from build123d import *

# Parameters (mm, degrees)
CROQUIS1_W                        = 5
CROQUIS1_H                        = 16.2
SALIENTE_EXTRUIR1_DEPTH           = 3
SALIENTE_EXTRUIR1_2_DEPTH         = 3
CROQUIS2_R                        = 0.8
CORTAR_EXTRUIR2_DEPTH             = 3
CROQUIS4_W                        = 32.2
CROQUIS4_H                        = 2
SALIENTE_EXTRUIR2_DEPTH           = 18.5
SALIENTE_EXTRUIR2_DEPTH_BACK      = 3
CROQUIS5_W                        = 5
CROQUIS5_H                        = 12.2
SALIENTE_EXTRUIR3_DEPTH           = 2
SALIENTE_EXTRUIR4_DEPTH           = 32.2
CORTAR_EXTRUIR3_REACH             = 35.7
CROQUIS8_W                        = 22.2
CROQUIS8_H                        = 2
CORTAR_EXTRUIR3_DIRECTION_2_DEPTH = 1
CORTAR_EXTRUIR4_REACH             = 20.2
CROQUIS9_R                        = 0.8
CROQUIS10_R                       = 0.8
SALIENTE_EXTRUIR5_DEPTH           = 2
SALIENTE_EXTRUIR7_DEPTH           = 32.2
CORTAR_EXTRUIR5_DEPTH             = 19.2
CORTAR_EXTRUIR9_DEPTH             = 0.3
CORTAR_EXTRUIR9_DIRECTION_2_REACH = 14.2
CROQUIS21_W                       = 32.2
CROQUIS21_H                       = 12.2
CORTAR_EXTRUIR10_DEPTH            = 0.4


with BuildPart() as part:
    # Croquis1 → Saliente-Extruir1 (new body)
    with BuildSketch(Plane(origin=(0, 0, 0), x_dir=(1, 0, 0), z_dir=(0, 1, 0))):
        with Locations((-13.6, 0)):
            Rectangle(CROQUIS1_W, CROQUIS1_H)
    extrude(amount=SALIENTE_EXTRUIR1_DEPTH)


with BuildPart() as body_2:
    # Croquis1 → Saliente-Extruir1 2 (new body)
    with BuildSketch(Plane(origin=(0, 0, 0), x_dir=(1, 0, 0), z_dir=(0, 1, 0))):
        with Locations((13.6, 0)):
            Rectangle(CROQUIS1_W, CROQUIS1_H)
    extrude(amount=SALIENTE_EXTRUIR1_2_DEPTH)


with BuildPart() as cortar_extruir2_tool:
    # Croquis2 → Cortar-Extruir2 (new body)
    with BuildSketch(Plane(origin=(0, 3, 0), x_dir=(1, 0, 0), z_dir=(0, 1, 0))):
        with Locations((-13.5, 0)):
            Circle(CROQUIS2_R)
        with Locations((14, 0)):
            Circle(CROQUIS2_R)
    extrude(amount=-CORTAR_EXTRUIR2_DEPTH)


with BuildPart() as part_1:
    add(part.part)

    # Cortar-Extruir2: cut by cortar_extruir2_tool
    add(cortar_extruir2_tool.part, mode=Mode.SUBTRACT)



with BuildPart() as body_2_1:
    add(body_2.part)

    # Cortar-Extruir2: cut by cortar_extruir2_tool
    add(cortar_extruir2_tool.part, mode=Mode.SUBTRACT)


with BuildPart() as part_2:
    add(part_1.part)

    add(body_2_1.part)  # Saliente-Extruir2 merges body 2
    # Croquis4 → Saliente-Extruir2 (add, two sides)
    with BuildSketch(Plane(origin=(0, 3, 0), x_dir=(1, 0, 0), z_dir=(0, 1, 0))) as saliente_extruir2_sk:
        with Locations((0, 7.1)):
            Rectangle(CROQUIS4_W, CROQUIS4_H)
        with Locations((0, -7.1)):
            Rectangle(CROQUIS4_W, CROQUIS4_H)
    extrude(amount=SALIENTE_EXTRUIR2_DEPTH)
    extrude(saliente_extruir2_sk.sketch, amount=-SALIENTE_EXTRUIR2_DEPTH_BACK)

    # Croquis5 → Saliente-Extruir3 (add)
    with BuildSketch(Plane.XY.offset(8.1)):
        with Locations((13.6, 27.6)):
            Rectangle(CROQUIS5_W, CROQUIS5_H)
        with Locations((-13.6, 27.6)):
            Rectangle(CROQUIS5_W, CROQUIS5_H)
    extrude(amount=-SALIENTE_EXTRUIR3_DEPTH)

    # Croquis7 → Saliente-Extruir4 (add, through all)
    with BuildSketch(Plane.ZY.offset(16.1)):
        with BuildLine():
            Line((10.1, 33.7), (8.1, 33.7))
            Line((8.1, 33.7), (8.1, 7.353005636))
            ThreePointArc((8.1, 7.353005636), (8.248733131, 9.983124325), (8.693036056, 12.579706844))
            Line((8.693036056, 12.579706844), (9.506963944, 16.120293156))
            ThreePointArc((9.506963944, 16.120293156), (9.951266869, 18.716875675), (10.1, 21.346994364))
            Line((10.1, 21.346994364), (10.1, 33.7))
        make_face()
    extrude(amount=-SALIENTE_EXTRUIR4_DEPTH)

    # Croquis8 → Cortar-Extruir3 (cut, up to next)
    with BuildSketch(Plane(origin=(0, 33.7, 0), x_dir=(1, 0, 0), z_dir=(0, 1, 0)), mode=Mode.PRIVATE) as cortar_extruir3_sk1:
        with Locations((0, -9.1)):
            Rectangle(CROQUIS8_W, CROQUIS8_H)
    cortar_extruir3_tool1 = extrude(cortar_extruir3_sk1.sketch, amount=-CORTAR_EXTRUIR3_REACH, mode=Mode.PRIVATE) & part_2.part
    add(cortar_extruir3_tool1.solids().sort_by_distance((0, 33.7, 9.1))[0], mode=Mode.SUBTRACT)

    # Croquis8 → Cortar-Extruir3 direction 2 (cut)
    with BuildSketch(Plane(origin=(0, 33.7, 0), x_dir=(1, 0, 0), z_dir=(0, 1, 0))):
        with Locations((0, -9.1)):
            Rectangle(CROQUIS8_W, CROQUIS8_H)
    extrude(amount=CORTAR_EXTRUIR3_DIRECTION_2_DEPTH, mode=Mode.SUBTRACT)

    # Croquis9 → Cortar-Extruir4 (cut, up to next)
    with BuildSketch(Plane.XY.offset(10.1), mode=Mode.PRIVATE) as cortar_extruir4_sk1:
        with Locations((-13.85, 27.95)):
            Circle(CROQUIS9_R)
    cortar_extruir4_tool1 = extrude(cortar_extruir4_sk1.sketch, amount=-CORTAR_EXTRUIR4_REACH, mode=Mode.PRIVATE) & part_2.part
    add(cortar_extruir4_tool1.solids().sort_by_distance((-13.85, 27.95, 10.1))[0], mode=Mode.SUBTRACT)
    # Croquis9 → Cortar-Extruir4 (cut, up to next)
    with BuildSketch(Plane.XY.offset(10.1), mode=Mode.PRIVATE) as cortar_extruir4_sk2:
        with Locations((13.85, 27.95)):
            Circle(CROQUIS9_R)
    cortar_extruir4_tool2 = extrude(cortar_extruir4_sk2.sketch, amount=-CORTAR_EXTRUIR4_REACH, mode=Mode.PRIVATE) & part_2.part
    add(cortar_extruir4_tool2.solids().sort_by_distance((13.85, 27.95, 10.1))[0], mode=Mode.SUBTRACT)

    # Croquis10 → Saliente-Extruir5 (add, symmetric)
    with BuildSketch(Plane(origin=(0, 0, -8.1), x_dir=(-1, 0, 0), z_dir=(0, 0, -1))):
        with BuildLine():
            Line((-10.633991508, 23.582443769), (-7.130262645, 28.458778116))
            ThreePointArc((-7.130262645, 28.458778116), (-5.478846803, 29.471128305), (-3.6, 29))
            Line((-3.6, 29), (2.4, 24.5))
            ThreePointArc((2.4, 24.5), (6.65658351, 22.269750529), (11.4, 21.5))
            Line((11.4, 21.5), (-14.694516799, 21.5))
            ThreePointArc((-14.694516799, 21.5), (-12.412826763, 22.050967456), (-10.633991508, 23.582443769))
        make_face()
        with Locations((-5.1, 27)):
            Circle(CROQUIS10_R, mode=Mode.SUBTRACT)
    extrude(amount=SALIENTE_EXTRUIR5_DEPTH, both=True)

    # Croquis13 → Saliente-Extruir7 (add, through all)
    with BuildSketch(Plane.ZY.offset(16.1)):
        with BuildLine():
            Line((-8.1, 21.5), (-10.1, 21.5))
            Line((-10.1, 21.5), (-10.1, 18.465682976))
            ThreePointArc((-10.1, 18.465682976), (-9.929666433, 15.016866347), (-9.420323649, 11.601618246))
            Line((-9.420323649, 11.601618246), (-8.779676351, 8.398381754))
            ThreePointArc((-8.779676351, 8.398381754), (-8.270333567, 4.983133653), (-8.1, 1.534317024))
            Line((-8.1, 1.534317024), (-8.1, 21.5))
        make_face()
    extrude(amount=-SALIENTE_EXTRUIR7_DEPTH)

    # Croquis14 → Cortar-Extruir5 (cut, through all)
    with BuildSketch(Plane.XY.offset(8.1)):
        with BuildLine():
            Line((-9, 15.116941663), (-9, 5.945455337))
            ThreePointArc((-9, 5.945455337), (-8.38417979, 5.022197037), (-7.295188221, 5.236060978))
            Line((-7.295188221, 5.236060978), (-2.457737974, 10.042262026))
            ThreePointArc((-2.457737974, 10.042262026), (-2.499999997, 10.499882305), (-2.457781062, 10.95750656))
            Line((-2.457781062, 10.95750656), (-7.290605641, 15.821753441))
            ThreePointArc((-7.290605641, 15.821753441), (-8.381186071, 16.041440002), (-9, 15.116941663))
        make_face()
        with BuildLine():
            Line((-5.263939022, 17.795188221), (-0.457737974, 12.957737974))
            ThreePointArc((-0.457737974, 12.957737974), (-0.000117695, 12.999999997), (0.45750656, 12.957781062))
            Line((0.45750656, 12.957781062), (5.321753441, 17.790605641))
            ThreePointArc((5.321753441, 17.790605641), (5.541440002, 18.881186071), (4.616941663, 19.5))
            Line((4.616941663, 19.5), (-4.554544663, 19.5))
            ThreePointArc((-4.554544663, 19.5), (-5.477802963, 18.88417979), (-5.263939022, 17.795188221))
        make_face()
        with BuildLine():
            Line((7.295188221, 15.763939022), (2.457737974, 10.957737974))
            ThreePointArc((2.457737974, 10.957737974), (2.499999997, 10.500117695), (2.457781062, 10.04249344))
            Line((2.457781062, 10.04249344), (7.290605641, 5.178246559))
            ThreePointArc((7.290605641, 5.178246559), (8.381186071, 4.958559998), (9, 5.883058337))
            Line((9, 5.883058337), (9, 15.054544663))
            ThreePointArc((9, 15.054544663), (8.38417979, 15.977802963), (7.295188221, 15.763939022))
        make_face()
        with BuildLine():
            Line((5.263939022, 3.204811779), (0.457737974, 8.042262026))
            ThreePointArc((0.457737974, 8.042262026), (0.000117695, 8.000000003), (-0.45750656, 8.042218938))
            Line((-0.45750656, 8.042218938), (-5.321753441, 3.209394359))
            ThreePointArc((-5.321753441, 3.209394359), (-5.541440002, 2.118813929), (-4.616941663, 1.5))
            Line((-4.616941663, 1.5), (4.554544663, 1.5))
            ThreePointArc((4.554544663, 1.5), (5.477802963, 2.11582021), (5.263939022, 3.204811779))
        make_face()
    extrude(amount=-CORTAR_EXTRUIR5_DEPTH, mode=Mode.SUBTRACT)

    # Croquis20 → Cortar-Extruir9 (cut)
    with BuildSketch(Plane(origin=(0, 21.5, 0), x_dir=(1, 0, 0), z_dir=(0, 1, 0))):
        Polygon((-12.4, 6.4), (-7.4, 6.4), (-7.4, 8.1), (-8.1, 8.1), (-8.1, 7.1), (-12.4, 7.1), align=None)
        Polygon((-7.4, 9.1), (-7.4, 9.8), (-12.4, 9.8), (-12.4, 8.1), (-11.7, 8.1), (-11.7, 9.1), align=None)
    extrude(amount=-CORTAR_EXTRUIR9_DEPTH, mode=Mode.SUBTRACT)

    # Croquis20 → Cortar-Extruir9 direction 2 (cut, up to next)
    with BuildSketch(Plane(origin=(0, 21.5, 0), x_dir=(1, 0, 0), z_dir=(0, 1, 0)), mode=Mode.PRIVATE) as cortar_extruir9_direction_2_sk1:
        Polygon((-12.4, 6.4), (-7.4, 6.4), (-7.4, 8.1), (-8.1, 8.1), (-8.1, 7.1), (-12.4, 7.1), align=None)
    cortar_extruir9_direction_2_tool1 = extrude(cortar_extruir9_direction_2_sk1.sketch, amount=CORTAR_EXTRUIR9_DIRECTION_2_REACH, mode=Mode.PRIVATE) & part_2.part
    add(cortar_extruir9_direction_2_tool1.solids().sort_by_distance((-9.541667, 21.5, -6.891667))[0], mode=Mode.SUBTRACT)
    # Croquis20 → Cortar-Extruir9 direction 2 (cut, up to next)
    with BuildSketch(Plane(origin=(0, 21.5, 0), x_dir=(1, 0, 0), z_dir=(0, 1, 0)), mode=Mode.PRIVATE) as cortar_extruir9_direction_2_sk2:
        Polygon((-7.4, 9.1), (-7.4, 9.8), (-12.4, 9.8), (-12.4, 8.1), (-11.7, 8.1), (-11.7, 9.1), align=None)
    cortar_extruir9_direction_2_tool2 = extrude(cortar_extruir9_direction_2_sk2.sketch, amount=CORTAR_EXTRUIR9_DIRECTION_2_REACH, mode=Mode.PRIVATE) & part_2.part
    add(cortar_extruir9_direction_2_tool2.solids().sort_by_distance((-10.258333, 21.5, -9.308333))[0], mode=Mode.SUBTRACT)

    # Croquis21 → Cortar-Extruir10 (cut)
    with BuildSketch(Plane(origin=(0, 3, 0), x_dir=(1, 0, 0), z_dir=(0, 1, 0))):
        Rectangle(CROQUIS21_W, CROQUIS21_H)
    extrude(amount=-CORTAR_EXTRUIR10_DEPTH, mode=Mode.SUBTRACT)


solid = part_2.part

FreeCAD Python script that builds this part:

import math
import FreeCAD as App
import Part
import Sketcher
from FreeCAD import Vector

doc = App.newDocument("Part")
params = doc.addObject("Spreadsheet::Sheet", "Params")
for row, (alias, value) in enumerate([
    ("sketch1_width", "5 mm"),
    ("sketch1_height", "16.2 mm"),
    ("pad1_length", "3 mm"),
    ("sketch2_width", "5 mm"),
    ("sketch2_height", "16.2 mm"),
    ("pad2_length", "3 mm"),
    ("sketch3_diameter", "1.6 mm"),
    ("pad3_length", "3 mm"),
    ("sketch4_height", "2 mm"),
    ("sketch4_width", "32.2 mm"),
    ("pad4_length", "18.5 mm"),
    ("pad4_length2", "3 mm"),
    ("sketch5_width", "5 mm"),
    ("sketch5_height", "12.2 mm"),
    ("pad5_length", "2 mm"),
    ("sketch6_height", "2 mm"),
    ("pad6_length", "32.2 mm"),
    ("sketch7_height", "2 mm"),
    ("sketch7_width", "22.2 mm"),
    ("pocket1_length", "26.346994 mm"),
    ("sketch8_height", "2 mm"),
    ("sketch8_width", "22.2 mm"),
    ("pocket2_length", "1 mm"),
    ("sketch9_diameter", "1.6 mm"),
    ("sketch10_diameter", "1.6 mm"),
    ("sketch11_radius", "5 mm"),
    ("sketch11_radius2", "15 mm"),
    ("sketch11_diameter", "1.6 mm"),
    ("sketch11_radius3", "2.5 mm"),
    ("pad7_length", "4 mm"),
    ("sketch12_radius", "35 mm"),
    ("sketch12_height", "2 mm"),
    ("pad8_length", "32.2 mm"),
    ("sketch13_radius", "1 mm"),
    ("sketch13_radius2", "2.5 mm"),
    ("sketch14_width", "5 mm"),
    ("sketch14_height", "1 mm"),
    ("sketch14_width2", "0.7 mm"),
    ("pocket6_length", "0.3 mm"),
    ("sketch15_width", "5 mm"),
    ("sketch15_height", "1 mm"),
    ("sketch15_width2", "0.7 mm"),
    ("pocket7_length", "0.543168 mm"),
    ("sketch16_width", "5 mm"),
    ("sketch16_height", "1 mm"),
    ("sketch16_width2", "0.7 mm"),
    ("pocket8_length", "0.543168 mm"),
    ("sketch17_width", "32.2 mm"),
    ("sketch17_height", "12.2 mm"),
    ("pocket9_length", "0.4 mm"),
], start=1):
    params.set(f"A{row}", alias)
    params.set(f"B{row}", "=" + value)
    params.setAlias(f"B{row}", alias)

body = doc.addObject("PartDesign::Body", "Body")

# Sketch on XZ plane
sketch1 = doc.addObject("Sketcher::SketchObject", "Sketch")
body.addObject(sketch1)
sketch1.AttachmentSupport = (doc.XZ_Plane, [""])
sketch1.MapMode = "FlatFace"
sketch1.addGeometry(Part.LineSegment(Vector(-16.1, -8.1, 0), Vector(-16.1, 8.1, 0)), False)
sketch1.addGeometry(Part.LineSegment(Vector(-16.1, 8.1, 0), Vector(-11.1, 8.1, 0)), False)
sketch1.addGeometry(Part.LineSegment(Vector(-11.1, 8.1, 0), Vector(-11.1, -8.1, 0)), False)
sketch1.addGeometry(Part.LineSegment(Vector(-11.1, -8.1, 0), Vector(-16.1, -8.1, 0)), False)
sketch1.addConstraint(Sketcher.Constraint("Coincident", 0, 2, 1, 1))
sketch1.addConstraint(Sketcher.Constraint("Coincident", 1, 2, 2, 1))
sketch1.addConstraint(Sketcher.Constraint("Coincident", 2, 2, 3, 1))
sketch1.addConstraint(Sketcher.Constraint("Coincident", 3, 2, 0, 1))
sketch1.addConstraint(Sketcher.Constraint("Vertical", 0))
sketch1.addConstraint(Sketcher.Constraint("Horizontal", 1))
sketch1.addConstraint(Sketcher.Constraint("Vertical", 2))
sketch1.addConstraint(Sketcher.Constraint("Horizontal", 3))
sketch1.addConstraint(Sketcher.Constraint("DistanceX", 1, 1, 1, 2, 5.0))
sketch1.addConstraint(Sketcher.Constraint("DistanceY", 0, 1, 0, 2, 16.2))
sketch1.addConstraint(Sketcher.Constraint("DistanceX", 0, 2, -1, 1, 16.1))
sketch1.addConstraint(Sketcher.Constraint("DistanceY", -1, 1, 0, 2, 8.1))
sketch1.setExpression("Constraints[8]", "Params.sketch1_width")
sketch1.setExpression("Constraints[9]", "Params.sketch1_height")
pad1 = doc.addObject("PartDesign::Pad", "Pad")
body.addObject(pad1)
pad1.Profile = sketch1
pad1.setExpression("Length", "Params.pad1_length")
pad1.Reversed = True
body2 = doc.addObject("PartDesign::Body", "Body001")

# Sketch on XZ plane
sketch2 = doc.addObject("Sketcher::SketchObject", "Sketch001")
body2.addObject(sketch2)
sketch2.AttachmentSupport = (doc.getObject("XZ_Plane001"), [""])
sketch2.MapMode = "FlatFace"
sketch2.addGeometry(Part.LineSegment(Vector(11.1, -8.1, 0), Vector(11.1, 8.1, 0)), False)
sketch2.addGeometry(Part.LineSegment(Vector(11.1, 8.1, 0), Vector(16.1, 8.1, 0)), False)
sketch2.addGeometry(Part.LineSegment(Vector(16.1, 8.1, 0), Vector(16.1, -8.1, 0)), False)
sketch2.addGeometry(Part.LineSegment(Vector(16.1, -8.1, 0), Vector(11.1, -8.1, 0)), False)
sketch2.addConstraint(Sketcher.Constraint("Coincident", 0, 2, 1, 1))
sketch2.addConstraint(Sketcher.Constraint("Coincident", 1, 2, 2, 1))
sketch2.addConstraint(Sketcher.Constraint("Coincident", 2, 2, 3, 1))
sketch2.addConstraint(Sketcher.Constraint("Coincident", 3, 2, 0, 1))
sketch2.addConstraint(Sketcher.Constraint("Vertical", 0))
sketch2.addConstraint(Sketcher.Constraint("Horizontal", 1))
sketch2.addConstraint(Sketcher.Constraint("Vertical", 2))
sketch2.addConstraint(Sketcher.Constraint("Horizontal", 3))
sketch2.addConstraint(Sketcher.Constraint("DistanceX", 1, 1, 1, 2, 5.0))
sketch2.addConstraint(Sketcher.Constraint("DistanceY", 0, 1, 0, 2, 16.2))
sketch2.addConstraint(Sketcher.Constraint("DistanceX", -1, 1, 0, 2, 11.1))
sketch2.addConstraint(Sketcher.Constraint("DistanceY", -1, 1, 0, 2, 8.1))
sketch2.setExpression("Constraints[8]", "Params.sketch2_width")
sketch2.setExpression("Constraints[9]", "Params.sketch2_height")
pad2 = doc.addObject("PartDesign::Pad", "Pad001")
body2.addObject(pad2)
pad2.Profile = sketch2
pad2.setExpression("Length", "Params.pad2_length")
pad2.Reversed = True
body3 = doc.addObject("PartDesign::Body", "Body002")
body3.AllowCompound = True

# Sketch on XZ plane
sketch3 = doc.addObject("Sketcher::SketchObject", "Sketch002")
body3.addObject(sketch3)
sketch3.AttachmentSupport = (doc.getObject("XZ_Plane002"), [""])
sketch3.MapMode = "FlatFace"
sketch3.AttachmentOffset = App.Placement(Vector(0, 0, -3), App.Rotation())
sketch3.addGeometry(Part.Circle(Vector(-13.5, 0, 0), Vector(0, 0, 1), 0.8), False)
sketch3.addGeometry(Part.Circle(Vector(14, 0, 0), Vector(0, 0, 1), 0.8), False)
sketch3.addConstraint(Sketcher.Constraint("Equal", 0, 1))
sketch3.addConstraint(Sketcher.Constraint("PointOnObject", 0, 3, -1))
sketch3.addConstraint(Sketcher.Constraint("PointOnObject", 1, 3, -1))
sketch3.addConstraint(Sketcher.Constraint("Diameter", 0, 1.6))
sketch3.addConstraint(Sketcher.Constraint("DistanceX", -1, 1, 1, 3, 14.0))
sketch3.addConstraint(Sketcher.Constraint("DistanceX", 0, 3, -1, 1, 13.5))
sketch3.setExpression("Constraints[3]", "Params.sketch3_diameter")
pad3 = doc.addObject("PartDesign::Pad", "Pad002")
body3.addObject(pad3)
pad3.Profile = sketch3
pad3.setExpression("Length", "Params.pad3_length")
doc.recompute()

body4 = doc.addObject("PartDesign::Body", "Body003")
body4.BaseFeature = body3
boolean = doc.addObject("PartDesign::Boolean", "Boolean")
body.addObject(boolean)
boolean.Type = "Cut"
boolean.addObjects([body4])
doc.recompute()

boolean2 = doc.addObject("PartDesign::Boolean", "Boolean001")
body2.addObject(boolean2)
boolean2.Type = "Cut"
boolean2.addObjects([body3])
body.AllowCompound = True
doc.recompute()

boolean3 = doc.addObject("PartDesign::Boolean", "Boolean002")
body.addObject(boolean3)
boolean3.Type = "Fuse"
boolean3.addObjects([body2])

# Sketch on XZ plane
sketch4 = doc.addObject("Sketcher::SketchObject", "Sketch003")
body.addObject(sketch4)
sketch4.AttachmentSupport = (doc.XZ_Plane, [""])
sketch4.MapMode = "FlatFace"
sketch4.AttachmentOffset = App.Placement(Vector(0, 0, -3), App.Rotation())
sketch4.addGeometry(Part.LineSegment(Vector(-16.1, -8.1, 0), Vector(-16.1, -6.1, 0)), False)
sketch4.addGeometry(Part.LineSegment(Vector(-16.1, -6.1, 0), Vector(16.1, -6.1, 0)), False)
sketch4.addGeometry(Part.LineSegment(Vector(16.1, -6.1, 0), Vector(16.1, -8.1, 0)), False)
sketch4.addGeometry(Part.LineSegment(Vector(16.1, -8.1, 0), Vector(-16.1, -8.1, 0)), False)
sketch4.addGeometry(Part.LineSegment(Vector(-16.1, 6.1, 0), Vector(-16.1, 8.1, 0)), False)
sketch4.addGeometry(Part.LineSegment(Vector(-16.1, 8.1, 0), Vector(16.1, 8.1, 0)), False)
sketch4.addGeometry(Part.LineSegment(Vector(16.1, 8.1, 0), Vector(16.1, 6.1, 0)), False)
sketch4.addGeometry(Part.LineSegment(Vector(16.1, 6.1, 0), Vector(-16.1, 6.1, 0)), False)
sketch4.addConstraint(Sketcher.Constraint("Coincident", 0, 2, 1, 1))
sketch4.addConstraint(Sketcher.Constraint("Coincident", 1, 2, 2, 1))
sketch4.addConstraint(Sketcher.Constraint("Coincident", 2, 2, 3, 1))
sketch4.addConstraint(Sketcher.Constraint("Coincident", 3, 2, 0, 1))
sketch4.addConstraint(Sketcher.Constraint("Coincident", 4, 2, 5, 1))
sketch4.addConstraint(Sketcher.Constraint("Coincident", 5, 2, 6, 1))
sketch4.addConstraint(Sketcher.Constraint("Coincident", 6, 2, 7, 1))
sketch4.addConstraint(Sketcher.Constraint("Coincident", 7, 2, 4, 1))
sketch4.addConstraint(Sketcher.Constraint("Vertical", 0))
sketch4.addConstraint(Sketcher.Constraint("Horizontal", 1))
sketch4.addConstraint(Sketcher.Constraint("Vertical", 2))
sketch4.addConstraint(Sketcher.Constraint("Horizontal", 3))
sketch4.addConstraint(Sketcher.Constraint("Vertical", 4))
sketch4.addConstraint(Sketcher.Constraint("Horizontal", 5))
sketch4.addConstraint(Sketcher.Constraint("Vertical", 6))
sketch4.addConstraint(Sketcher.Constraint("Horizontal", 7))
sketch4.addConstraint(Sketcher.Constraint("Symmetric", 2, 2, 4, 2, -1, 1))
sketch4.addConstraint(Sketcher.Constraint("Symmetric", 0, 2, 6, 2, -1, 1))
sketch4.addConstraint(Sketcher.Constraint("Vertical", 3, 2, 4, 2))
sketch4.addConstraint(Sketcher.Constraint("DistanceY", 0, 1, 0, 2, 2.0))
sketch4.addConstraint(Sketcher.Constraint("DistanceX", 1, 1, 1, 2, 32.2))
sketch4.addConstraint(Sketcher.Constraint("DistanceY", 0, 2, -1, 1, 6.1))
sketch4.setExpression("Constraints[19]", "Params.sketch4_height")
sketch4.setExpression("Constraints[20]", "Params.sketch4_width")
pad4 = doc.addObject("PartDesign::Pad", "Pad003")
body.addObject(pad4)
pad4.Profile = sketch4
pad4.Type = "TwoLengths"
pad4.setExpression("Length", "Params.pad4_length")
pad4.setExpression("Length2", "Params.pad4_length2")
pad4.Reversed = True

# Sketch on XY plane
sketch5 = doc.addObject("Sketcher::SketchObject", "Sketch004")
body.addObject(sketch5)
sketch5.AttachmentSupport = (doc.XY_Plane, [""])
sketch5.MapMode = "FlatFace"
sketch5.AttachmentOffset = App.Placement(Vector(0, 0, 8.1), App.Rotation())
sketch5.addGeometry(Part.LineSegment(Vector(11.1, 33.7, 0), Vector(11.1, 21.5, 0)), False)
sketch5.addGeometry(Part.LineSegment(Vector(11.1, 21.5, 0), Vector(16.1, 21.5, 0)), False)
sketch5.addGeometry(Part.LineSegment(Vector(16.1, 21.5, 0), Vector(16.1, 33.7, 0)), False)
sketch5.addGeometry(Part.LineSegment(Vector(16.1, 33.7, 0), Vector(11.1, 33.7, 0)), False)
sketch5.addGeometry(Part.LineSegment(Vector(-16.1, 33.7, 0), Vector(-16.1, 21.5, 0)), False)
sketch5.addGeometry(Part.LineSegment(Vector(-16.1, 21.5, 0), Vector(-11.1, 21.5, 0)), False)
sketch5.addGeometry(Part.LineSegment(Vector(-11.1, 21.5, 0), Vector(-11.1, 33.7, 0)), False)
sketch5.addGeometry(Part.LineSegment(Vector(-11.1, 33.7, 0), Vector(-16.1, 33.7, 0)), False)
sketch5.addConstraint(Sketcher.Constraint("Coincident", 0, 2, 1, 1))
sketch5.addConstraint(Sketcher.Constraint("Coincident", 1, 2, 2, 1))
sketch5.addConstraint(Sketcher.Constraint("Coincident", 2, 2, 3, 1))
sketch5.addConstraint(Sketcher.Constraint("Coincident", 3, 2, 0, 1))
sketch5.addConstraint(Sketcher.Constraint("Coincident", 4, 2, 5, 1))
sketch5.addConstraint(Sketcher.Constraint("Coincident", 5, 2, 6, 1))
sketch5.addConstraint(Sketcher.Constraint("Coincident", 6, 2, 7, 1))
sketch5.addConstraint(Sketcher.Constraint("Coincident", 7, 2, 4, 1))
sketch5.addConstraint(Sketcher.Constraint("Vertical", 0))
sketch5.addConstraint(Sketcher.Constraint("Horizontal", 1))
sketch5.addConstraint(Sketcher.Constraint("Vertical", 2))
sketch5.addConstraint(Sketcher.Constraint("Horizontal", 3))
sketch5.addConstraint(Sketcher.Constraint("Vertical", 4))
sketch5.addConstraint(Sketcher.Constraint("Horizontal", 5))
sketch5.addConstraint(Sketcher.Constraint("Vertical", 6))
sketch5.addConstraint(Sketcher.Constraint("Horizontal", 7))
sketch5.addConstraint(Sketcher.Constraint("Symmetric", 1, 2, 4, 2, -2))
sketch5.addConstraint(Sketcher.Constraint("Symmetric", 3, 2, 6, 2, -2))
sketch5.addConstraint(Sketcher.Constraint("DistanceX", 1, 1, 1, 2, 5.0))
sketch5.addConstraint(Sketcher.Constraint("DistanceY", 0, 2, 0, 1, 12.2))
sketch5.addConstraint(Sketcher.Constraint("DistanceX", -1, 1, 0, 2, 11.1))
sketch5.addConstraint(Sketcher.Constraint("DistanceY", -1, 1, 0, 2, 21.5))
sketch5.setExpression("Constraints[18]", "Params.sketch5_width")
sketch5.setExpression("Constraints[19]", "Params.sketch5_height")
pad5 = doc.addObject("PartDesign::Pad", "Pad004")
body.addObject(pad5)
pad5.Profile = sketch5
pad5.setExpression("Length", "Params.pad5_length")
pad5.Reversed = True

# Sketch on YZ plane
sketch6 = doc.addObject("Sketcher::SketchObject", "Sketch005")
body.addObject(sketch6)
sketch6.AttachmentSupport = (doc.YZ_Plane, [""])
sketch6.MapMode = "FlatFace"
sketch6.AttachmentOffset = App.Placement(Vector(0, 0, -16.1), App.Rotation())
sketch6.addGeometry(Part.LineSegment(Vector(33.7, 10.1, 0), Vector(33.7, 8.1, 0)), False)
sketch6.addGeometry(Part.LineSegment(Vector(33.7, 8.1, 0), Vector(7.353006, 8.1, 0)), False)
sketch6.addGeometry(Part.ArcOfCircle(Part.Circle(Vector(7.353006, 31.429186, 0), Vector(0, 0, 1), 23.329186), math.radians(-90), math.radians(-77.05349)), False)
sketch6.addGeometry(Part.LineSegment(Vector(12.579707, 8.693036, 0), Vector(16.120293, 9.506964, 0)), False)
sketch6.addGeometry(Part.ArcOfCircle(Part.Circle(Vector(21.346994, -13.229186, 0), Vector(0, 0, 1), 23.329186), math.radians(90), math.radians(102.94651)), False)
sketch6.addGeometry(Part.LineSegment(Vector(21.346994, 10.1, 0), Vector(33.7, 10.1, 0)), False)
sketch6.addConstraint(Sketcher.Constraint("Coincident", 0, 2, 1, 1))
sketch6.addConstraint(Sketcher.Constraint("Tangent", 1, 2, 2, 1))
sketch6.addConstraint(Sketcher.Constraint("Tangent", 2, 2, 3, 1))
sketch6.addConstraint(Sketcher.Constraint("Tangent", 3, 2, 4, 2))
sketch6.addConstraint(Sketcher.Constraint("Tangent", 4, 1, 5, 1))
sketch6.addConstraint(Sketcher.Constraint("Coincident", 5, 2, 0, 1))
sketch6.addConstraint(Sketcher.Constraint("Vertical", 0))
sketch6.addConstraint(Sketcher.Constraint("Horizontal", 1))
sketch6.addConstraint(Sketcher.Constraint("Horizontal", 5))
sketch6.addConstraint(Sketcher.Constraint("Equal", 2, 4))
sketch6.addConstraint(Sketcher.Constraint("DistanceY", 0, 2, 0, 1, 2.0))
sketch6.addConstraint(Sketcher.Constraint("DistanceX", -1, 1, 0, 2, 33.7))
sketch6.addConstraint(Sketcher.Constraint("DistanceY", -1, 1, 0, 2, 8.1))
sketch6.addConstraint(Sketcher.Constraint("Radius", 2, 23.329186))
sketch6.addConstraint(Sketcher.Constraint("DistanceX", 1, 2, 2, 2, 5.226701))
sketch6.addConstraint(Sketcher.Constraint("DistanceX", 1, 2, 1, 1, 26.346994))
sketch6.setExpression("Constraints[10]", "Params.sketch6_height")
pad6 = doc.addObject("PartDesign::Pad", "Pad005")
body.addObject(pad6)
pad6.Profile = sketch6
pad6.setExpression("Length", "Params.pad6_length")

# Sketch on XZ plane
sketch7 = doc.addObject("Sketcher::SketchObject", "Sketch006")
body.addObject(sketch7)
sketch7.AttachmentSupport = (doc.XZ_Plane, [""])
sketch7.MapMode = "FlatFace"
sketch7.AttachmentOffset = App.Placement(Vector(0, 0, -33.7), App.Rotation())
sketch7.addGeometry(Part.LineSegment(Vector(-11.1, 8.1, 0), Vector(-11.1, 10.1, 0)), False)
sketch7.addGeometry(Part.LineSegment(Vector(-11.1, 10.1, 0), Vector(11.1, 10.1, 0)), False)
sketch7.addGeometry(Part.LineSegment(Vector(11.1, 10.1, 0), Vector(11.1, 8.1, 0)), False)
sketch7.addGeometry(Part.LineSegment(Vector(11.1, 8.1, 0), Vector(-11.1, 8.1, 0)), False)
sketch7.addConstraint(Sketcher.Constraint("Coincident", 0, 2, 1, 1))
sketch7.addConstraint(Sketcher.Constraint("Coincident", 1, 2, 2, 1))
sketch7.addConstraint(Sketcher.Constraint("Coincident", 2, 2, 3, 1))
sketch7.addConstraint(Sketcher.Constraint("Coincident", 3, 2, 0, 1))
sketch7.addConstraint(Sketcher.Constraint("Vertical", 0))
sketch7.addConstraint(Sketcher.Constraint("Horizontal", 1))
sketch7.addConstraint(Sketcher.Constraint("Vertical", 2))
sketch7.addConstraint(Sketcher.Constraint("Horizontal", 3))
sketch7.addConstraint(Sketcher.Constraint("DistanceY", 0, 1, 0, 2, 2.0))
sketch7.addConstraint(Sketcher.Constraint("DistanceX", 1, 1, 1, 2, 22.2))
sketch7.addConstraint(Sketcher.Constraint("DistanceX", 0, 2, -1, 1, 11.1))
sketch7.addConstraint(Sketcher.Constraint("DistanceY", -1, 1, 0, 2, 10.1))
sketch7.setExpression("Constraints[8]", "Params.sketch7_height")
sketch7.setExpression("Constraints[9]", "Params.sketch7_width")
pocket1 = doc.addObject("PartDesign::Pocket", "Pocket")
body.addObject(pocket1)
pocket1.Profile = sketch7
pocket1.setExpression("Length", "Params.pocket1_length")
pocket1.Reversed = True

# Sketch on XZ plane
sketch8 = doc.addObject("Sketcher::SketchObject", "Sketch007")
body.addObject(sketch8)
sketch8.AttachmentSupport = (doc.XZ_Plane, [""])
sketch8.MapMode = "FlatFace"
sketch8.AttachmentOffset = App.Placement(Vector(0, 0, -33.7), App.Rotation())
sketch8.addGeometry(Part.LineSegment(Vector(-11.1, 8.1, 0), Vector(-11.1, 10.1, 0)), False)
sketch8.addGeometry(Part.LineSegment(Vector(-11.1, 10.1, 0), Vector(11.1, 10.1, 0)), False)
sketch8.addGeometry(Part.LineSegment(Vector(11.1, 10.1, 0), Vector(11.1, 8.1, 0)), False)
sketch8.addGeometry(Part.LineSegment(Vector(11.1, 8.1, 0), Vector(-11.1, 8.1, 0)), False)
sketch8.addConstraint(Sketcher.Constraint("Coincident", 0, 2, 1, 1))
sketch8.addConstraint(Sketcher.Constraint("Coincident", 1, 2, 2, 1))
sketch8.addConstraint(Sketcher.Constraint("Coincident", 2, 2, 3, 1))
sketch8.addConstraint(Sketcher.Constraint("Coincident", 3, 2, 0, 1))
sketch8.addConstraint(Sketcher.Constraint("Vertical", 0))
sketch8.addConstraint(Sketcher.Constraint("Horizontal", 1))
sketch8.addConstraint(Sketcher.Constraint("Vertical", 2))
sketch8.addConstraint(Sketcher.Constraint("Horizontal", 3))
sketch8.addConstraint(Sketcher.Constraint("DistanceY", 0, 1, 0, 2, 2.0))
sketch8.addConstraint(Sketcher.Constraint("DistanceX", 1, 1, 1, 2, 22.2))
sketch8.addConstraint(Sketcher.Constraint("DistanceX", 0, 2, -1, 1, 11.1))
sketch8.addConstraint(Sketcher.Constraint("DistanceY", -1, 1, 0, 2, 10.1))
sketch8.setExpression("Constraints[8]", "Params.sketch8_height")
sketch8.setExpression("Constraints[9]", "Params.sketch8_width")
pocket2 = doc.addObject("PartDesign::Pocket", "Pocket001")
body.addObject(pocket2)
pocket2.Profile = sketch8
pocket2.setExpression("Length", "Params.pocket2_length")

# Sketch on XY plane
sketch9 = doc.addObject("Sketcher::SketchObject", "Sketch008")
body.addObject(sketch9)
sketch9.AttachmentSupport = (doc.XY_Plane, [""])
sketch9.MapMode = "FlatFace"
sketch9.AttachmentOffset = App.Placement(Vector(0, 0, 10.1), App.Rotation())
sketch9.addGeometry(Part.Circle(Vector(-13.85, 27.95, 0), Vector(0, 0, 1), 0.8), False)
sketch9.addConstraint(Sketcher.Constraint("Diameter", 0, 1.6))
sketch9.addConstraint(Sketcher.Constraint("DistanceX", 0, 3, -1, 1, 13.85))
sketch9.addConstraint(Sketcher.Constraint("DistanceY", -1, 1, 0, 3, 27.95))
sketch9.setExpression("Constraints[0]", "Params.sketch9_diameter")
pocket3 = doc.addObject("PartDesign::Pocket", "Pocket002")
body.addObject(pocket3)
pocket3.Profile = sketch9
pocket3.Type = "UpToFirst"

# Sketch on XY plane
sketch10 = doc.addObject("Sketcher::SketchObject", "Sketch009")
body.addObject(sketch10)
sketch10.AttachmentSupport = (doc.XY_Plane, [""])
sketch10.MapMode = "FlatFace"
sketch10.AttachmentOffset = App.Placement(Vector(0, 0, 10.1), App.Rotation())
sketch10.addGeometry(Part.Circle(Vector(13.85, 27.95, 0), Vector(0, 0, 1), 0.8), False)
sketch10.addConstraint(Sketcher.Constraint("Diameter", 0, 1.6))
sketch10.addConstraint(Sketcher.Constraint("DistanceX", -1, 1, 0, 3, 13.85))
sketch10.addConstraint(Sketcher.Constraint("DistanceY", -1, 1, 0, 3, 27.95))
sketch10.setExpression("Constraints[0]", "Params.sketch10_diameter")
pocket4 = doc.addObject("PartDesign::Pocket", "Pocket003")
body.addObject(pocket4)
pocket4.Profile = sketch10
pocket4.Type = "UpToFirst"

# Sketch on XY plane
sketch11 = doc.addObject("Sketcher::SketchObject", "Sketch010")
body.addObject(sketch11)
sketch11.AttachmentSupport = (doc.XY_Plane, [""])
sketch11.MapMode = "FlatFace"
sketch11.AttachmentOffset = App.Placement(Vector(0, 0, -8.1), App.Rotation())
sketch11.addGeometry(Part.LineSegment(Vector(7.130263, 28.458778, 0), Vector(10.633992, 23.582444, 0)), False)
sketch11.addGeometry(Part.ArcOfCircle(Part.Circle(Vector(14.694517, 26.5, 0), Vector(0, 0, 1), 5), math.radians(-144.302114), math.radians(-90)), False)
sketch11.addGeometry(Part.LineSegment(Vector(14.694517, 21.5, 0), Vector(-11.4, 21.5, 0)), False)
sketch11.addGeometry(Part.ArcOfCircle(Part.Circle(Vector(-11.4, 36.5, 0), Vector(0, 0, 1), 15), math.radians(-90), math.radians(-53.130102)), False)
sketch11.addGeometry(Part.LineSegment(Vector(-2.4, 24.5, 0), Vector(3.6, 29, 0)), False)
sketch11.addGeometry(Part.ArcOfCircle(Part.Circle(Vector(5.1, 27, 0), Vector(0, 0, 1), 2.5), math.radians(35.697886), math.radians(126.869898)), False)
sketch11.addGeometry(Part.Circle(Vector(5.1, 27, 0), Vector(0, 0, 1), 0.8), False)
sketch11.addConstraint(Sketcher.Constraint("Tangent", 0, 2, 1, 1))
sketch11.addConstraint(Sketcher.Constraint("Tangent", 1, 2, 2, 1))
sketch11.addConstraint(Sketcher.Constraint("Tangent", 2, 2, 3, 1))
sketch11.addConstraint(Sketcher.Constraint("Tangent", 3, 2, 4, 1))
sketch11.addConstraint(Sketcher.Constraint("Tangent", 4, 2, 5, 2))
sketch11.addConstraint(Sketcher.Constraint("Tangent", 5, 1, 0, 1))
sketch11.addConstraint(Sketcher.Constraint("Horizontal", 2))
sketch11.addConstraint(Sketcher.Constraint("Coincident", 6, 3, 5, 3))
sketch11.addConstraint(Sketcher.Constraint("Radius", 1, 5.0))
sketch11.addConstraint(Sketcher.Constraint("Radius", 3, 15.0))
sketch11.addConstraint(Sketcher.Constraint("Diameter", 6, 1.6))
sketch11.addConstraint(Sketcher.Constraint("Radius", 5, 2.5))
sketch11.addConstraint(Sketcher.Constraint("DistanceY", -1, 1, 5, 3, 27.0))
sketch11.addConstraint(Sketcher.Constraint("DistanceY", -1, 1, 4, 2, 29.0))
sketch11.addConstraint(Sketcher.Constraint("DistanceX", 3, 2, 4, 2, 6.0))
sketch11.addConstraint(Sketcher.Constraint("DistanceX", 3, 3, -1, 1, 11.4))
sketch11.addConstraint(Sketcher.Constraint("Distance", 0, 6.004561))
sketch11.setExpression("Constraints[8]", "Params.sketch11_radius")
sketch11.setExpression("Constraints[9]", "Params.sketch11_radius2")
sketch11.setExpression("Constraints[10]", "Params.sketch11_diameter")
sketch11.setExpression("Constraints[11]", "Params.sketch11_radius3")
pad7 = doc.addObject("PartDesign::Pad", "Pad006")
body.addObject(pad7)
pad7.Profile = sketch11
pad7.setExpression("Length", "Params.pad7_length")
pad7.Midplane = True

# Sketch on YZ plane
sketch12 = doc.addObject("Sketcher::SketchObject", "Sketch011")
body.addObject(sketch12)
sketch12.AttachmentSupport = (doc.YZ_Plane, [""])
sketch12.MapMode = "FlatFace"
sketch12.AttachmentOffset = App.Placement(Vector(0, 0, -16.1), App.Rotation())
sketch12.addGeometry(Part.LineSegment(Vector(21.5, -8.1, 0), Vector(21.5, -10.1, 0)), False)
sketch12.addGeometry(Part.LineSegment(Vector(21.5, -10.1, 0), Vector(18.465683, -10.1, 0)), False)
sketch12.addGeometry(Part.ArcOfCircle(Part.Circle(Vector(18.465683, 24.9, 0), Vector(0, 0, 1), 35), math.radians(-101.309932), math.radians(-90)), False)
sketch12.addGeometry(Part.LineSegment(Vector(11.601618, -9.420324, 0), Vector(8.398382, -8.779676, 0)), False)
sketch12.addGeometry(Part.ArcOfCircle(Part.Circle(Vector(1.534317, -43.1, 0), Vector(0, 0, 1), 35), math.radians(78.690068), math.radians(90)), False)
sketch12.addGeometry(Part.LineSegment(Vector(1.534317, -8.1, 0), Vector(21.5, -8.1, 0)), False)
sketch12.addConstraint(Sketcher.Constraint("Coincident", 0, 2, 1, 1))
sketch12.addConstraint(Sketcher.Constraint("Tangent", 1, 2, 2, 2))
sketch12.addConstraint(Sketcher.Constraint("Tangent", 2, 1, 3, 1))
sketch12.addConstraint(Sketcher.Constraint("Tangent", 3, 2, 4, 1))
sketch12.addConstraint(Sketcher.Constraint("Tangent", 4, 2, 5, 1))
sketch12.addConstraint(Sketcher.Constraint("Coincident", 5, 2, 0, 1))
sketch12.addConstraint(Sketcher.Constraint("Vertical", 0))
sketch12.addConstraint(Sketcher.Constraint("Horizontal", 1))
sketch12.addConstraint(Sketcher.Constraint("Horizontal", 5))
sketch12.addConstraint(Sketcher.Constraint("Equal", 2, 4))
sketch12.addConstraint(Sketcher.Constraint("Radius", 2, 35.0))
sketch12.addConstraint(Sketcher.Constraint("DistanceY", 0, 2, 0, 1, 2.0))
sketch12.addConstraint(Sketcher.Constraint("DistanceY", -1, 1, 2, 3, 24.9))
sketch12.addConstraint(Sketcher.Constraint("DistanceX", -1, 1, 0, 2, 21.5))
sketch12.addConstraint(Sketcher.Constraint("DistanceX", 4, 3, 2, 1, 10.067301))
sketch12.addConstraint(Sketcher.Constraint("DistanceX", 1, 2, 1, 1, 3.034317))
sketch12.setExpression("Constraints[10]", "Params.sketch12_radius")
sketch12.setExpression("Constraints[11]", "Params.sketch12_height")
pad8 = doc.addObject("PartDesign::Pad", "Pad007")
body.addObject(pad8)
pad8.Profile = sketch12
pad8.setExpression("Length", "Params.pad8_length")

# Sketch on XY plane
sketch13 = doc.addObject("Sketcher::SketchObject", "Sketch012")
body.addObject(sketch13)
sketch13.AttachmentSupport = (doc.XY_Plane, [""])
sketch13.MapMode = "FlatFace"
sketch13.AttachmentOffset = App.Placement(Vector(0, 0, 8.1), App.Rotation())
sketch13.addGeometry(Part.LineSegment(Vector(-9, 15.116942, 0), Vector(-9, 5.945455, 0)), False)
sketch13.addGeometry(Part.ArcOfCircle(Part.Circle(Vector(-8, 5.945455, 0), Vector(0, 0, 1), 1), math.radians(180), math.radians(314.81434)), False)
sketch13.addGeometry(Part.LineSegment(Vector(-7.295188, 5.236061, 0), Vector(-2.457738, 10.042262, 0)), False)
sketch13.addGeometry(Part.ArcOfCircle(Part.Circle(Vector(0, 10.5, 0), Vector(0, 0, 1), 2.5), math.radians(169.455297), math.radians(190.550098)), False)
sketch13.addGeometry(Part.LineSegment(Vector(-2.457781, 10.957507, 0), Vector(-7.290606, 15.821753, 0)), False)
sketch13.addGeometry(Part.ArcOfCircle(Part.Circle(Vector(-8, 15.116942, 0), Vector(0, 0, 1), 1), math.radians(44.81434), math.radians(180)), False)
sketch13.addGeometry(Part.LineSegment(Vector(-5.263939, 17.795188, 0), Vector(-0.457738, 12.957738, 0)), False)
sketch13.addGeometry(Part.ArcOfCircle(Part.Circle(Vector(0, 10.5, 0), Vector(0, 0, 1), 2.5), math.radians(79.455297), math.radians(100.550098)), False)
sketch13.addGeometry(Part.LineSegment(Vector(0.457507, 12.957781, 0), Vector(5.321753, 17.790606, 0)), False)
sketch13.addGeometry(Part.ArcOfCircle(Part.Circle(Vector(4.616942, 18.5, 0), Vector(0, 0, 1), 1), math.radians(-45.18566), math.radians(90)), False)
sketch13.addGeometry(Part.LineSegment(Vector(4.616942, 19.5, 0), Vector(-4.554545, 19.5, 0)), False)
sketch13.addGeometry(Part.ArcOfCircle(Part.Circle(Vector(-4.554545, 18.5, 0), Vector(0, 0, 1), 1), math.radians(90), math.radians(224.81434)), False)
sketch13.addGeometry(Part.LineSegment(Vector(7.295188, 15.763939, 0), Vector(2.457738, 10.957738, 0)), False)
sketch13.addGeometry(Part.ArcOfCircle(Part.Circle(Vector(0, 10.5, 0), Vector(0, 0, 1), 2.5), math.radians(-10.544703), math.radians(10.550098)), False)
sketch13.addGeometry(Part.LineSegment(Vector(2.457781, 10.042493, 0), Vector(7.290606, 5.178247, 0)), False)
sketch13.addGeometry(Part.ArcOfCircle(Part.Circle(Vector(8, 5.883058, 0), Vector(0, 0, 1), 1), math.radians(-135.18566), math.radians(0)), False)
sketch13.addGeometry(Part.LineSegment(Vector(9, 5.883058, 0), Vector(9, 15.054545, 0)), False)
sketch13.addGeometry(Part.ArcOfCircle(Part.Circle(Vector(8, 15.054545, 0), Vector(0, 0, 1), 1), math.radians(0), math.radians(134.81434)), False)
sketch13.addGeometry(Part.LineSegment(Vector(5.263939, 3.204812, 0), Vector(0.457738, 8.042262, 0)), False)
sketch13.addGeometry(Part.ArcOfCircle(Part.Circle(Vector(0, 10.5, 0), Vector(0, 0, 1), 2.5), math.radians(-100.544703), math.radians(-79.449902)), False)
sketch13.addGeometry(Part.LineSegment(Vector(-0.457507, 8.042219, 0), Vector(-5.321753, 3.209394, 0)), False)
sketch13.addGeometry(Part.ArcOfCircle(Part.Circle(Vector(-4.616942, 2.5, 0), Vector(0, 0, 1), 1), math.radians(134.81434), math.radians(270)), False)
sketch13.addGeometry(Part.LineSegment(Vector(-4.616942, 1.5, 0), Vector(4.554545, 1.5, 0)), False)
sketch13.addGeometry(Part.ArcOfCircle(Part.Circle(Vector(4.554545, 2.5, 0), Vector(0, 0, 1), 1), math.radians(-90), math.radians(44.81434)), False)
sketch13.addConstraint(Sketcher.Constraint("Tangent", 0, 2, 1, 1))
sketch13.addConstraint(Sketcher.Constraint("Tangent", 1, 2, 2, 1))
sketch13.addConstraint(Sketcher.Constraint("Coincident", 2, 2, 3, 2))
sketch13.addConstraint(Sketcher.Constraint("Coincident", 3, 1, 4, 1))
sketch13.addConstraint(Sketcher.Constraint("Tangent", 4, 2, 5, 1))
sketch13.addConstraint(Sketcher.Constraint("Tangent", 5, 2, 0, 1))
sketch13.addConstraint(Sketcher.Constraint("Coincident", 6, 2, 7, 2))
sketch13.addConstraint(Sketcher.Constraint("Coincident", 7, 1, 8, 1))
sketch13.addConstraint(Sketcher.Constraint("Tangent", 8, 2, 9, 1))
sketch13.addConstraint(Sketcher.Constraint("Tangent", 9, 2, 10, 1))
sketch13.addConstraint(Sketcher.Constraint("Tangent", 10, 2, 11, 1))
sketch13.addConstraint(Sketcher.Constraint("Tangent", 11, 2, 6, 1))
sketch13.addConstraint(Sketcher.Constraint("Coincident", 12, 2, 13, 2))
sketch13.addConstraint(Sketcher.Constraint("Coincident", 13, 1, 14, 1))
sketch13.addConstraint(Sketcher.Constraint("Tangent", 14, 2, 15, 1))
sketch13.addConstraint(Sketcher.Constraint("Tangent", 15, 2, 16, 1))
sketch13.addConstraint(Sketcher.Constraint("Tangent", 16, 2, 17, 1))
sketch13.addConstraint(Sketcher.Constraint("Tangent", 17, 2, 12, 1))
sketch13.addConstraint(Sketcher.Constraint("Coincident", 18, 2, 19, 2))
sketch13.addConstraint(Sketcher.Constraint("Coincident", 19, 1, 20, 1))
sketch13.addConstraint(Sketcher.Constraint("Tangent", 20, 2, 21, 1))
sketch13.addConstraint(Sketcher.Constraint("Tangent", 21, 2, 22, 1))
sketch13.addConstraint(Sketcher.Constraint("Tangent", 22, 2, 23, 1))
sketch13.addConstraint(Sketcher.Constraint("Tangent", 23, 2, 18, 1))
sketch13.addConstraint(Sketcher.Constraint("Vertical", 0))
sketch13.addConstraint(Sketcher.Constraint("Horizontal", 10))
sketch13.addConstraint(Sketcher.Constraint("Vertical", 16))
sketch13.addConstraint(Sketcher.Constraint("Horizontal", 22))
sketch13.addConstraint(Sketcher.Constraint("Coincident", 7, 3, 3, 3))
sketch13.addConstraint(Sketcher.Constraint("Coincident", 13, 3, 3, 3))
sketch13.addConstraint(Sketcher.Constraint("Coincident", 19, 3, 3, 3))
sketch13.addConstraint(Sketcher.Constraint("Equal", 1, 5))
sketch13.addConstraint(Sketcher.Constraint("Equal", 3, 7))
sketch13.addConstraint(Sketcher.Constraint("Equal", 5, 9))
sketch13.addConstraint(Sketcher.Constraint("Equal", 9, 11))
sketch13.addConstraint(Sketcher.Constraint("Equal", 7, 13))
sketch13.addConstraint(Sketcher.Constraint("Equal", 11, 15))
sketch13.addConstraint(Sketcher.Constraint("Equal", 15, 17))
sketch13.addConstraint(Sketcher.Constraint("Equal", 13, 19))
sketch13.addConstraint(Sketcher.Constraint("Equal", 17, 21))
sketch13.addConstraint(Sketcher.Constraint("Equal", 21, 23))
sketch13.addConstraint(Sketcher.Constraint("PointOnObject", 3, 3, -2))
sketch13.addConstraint(Sketcher.Constraint("Perpendicular", 2, 4))
sketch13.addConstraint(Sketcher.Constraint("Parallel", 4, 6))
sketch13.addConstraint(Sketcher.Constraint("Perpendicular", 6, 8))
sketch13.addConstraint(Sketcher.Constraint("Parallel", 8, 12))
sketch13.addConstraint(Sketcher.Constraint("Perpendicular", 12, 14))
sketch13.addConstraint(Sketcher.Constraint("Parallel", 14, 18))
sketch13.addConstraint(Sketcher.Constraint("Perpendicular", 18, 20))
sketch13.addConstraint(Sketcher.Constraint("Equal", 10, 22))
sketch13.addConstraint(Sketcher.Constraint("Equal", 22, 0))
sketch13.addConstraint(Sketcher.Constraint("Equal", 0, 16))
sketch13.addConstraint(Sketcher.Constraint("Equal", 2, 6))
sketch13.addConstraint(Sketcher.Constraint("Equal", 4, 8))
sketch13.addConstraint(Sketcher.Constraint("Equal", 6, 12))
sketch13.addConstraint(Sketcher.Constraint("Equal", 8, 14))
sketch13.addConstraint(Sketcher.Constraint("Equal", 12, 18))
sketch13.addConstraint(Sketcher.Constraint("Equal", 14, 20))
sketch13.addConstraint(Sketcher.Constraint("Radius", 1, 1.0))
sketch13.addConstraint(Sketcher.Constraint("Radius", 3, 2.5))
sketch13.addConstraint(Sketcher.Constraint("DistanceX", 1, 3, -1, 1, 8.0))
sketch13.addConstraint(Sketcher.Constraint("DistanceY", -1, 1, 3, 3, 10.5))
sketch13.addConstraint(Sketcher.Constraint("Distance", 4, 6.856901))
sketch13.addConstraint(Sketcher.Constraint("DistanceY", 1, 2, 2, 2, 4.806201))
sketch13.addConstraint(Sketcher.Constraint("DistanceX", 10, 2, 10, 1, 9.171486))
sketch13.setExpression("Constraints[58]", "Params.sketch13_radius")
sketch13.setExpression("Constraints[59]", "Params.sketch13_radius2")
pocket5 = doc.addObject("PartDesign::Pocket", "Pocket004")
body.addObject(pocket5)
pocket5.Profile = sketch13
pocket5.Type = "ThroughAll"

# Sketch on XZ plane
sketch14 = doc.addObject("Sketcher::SketchObject", "Sketch013")
body.addObject(sketch14)
sketch14.AttachmentSupport = (doc.XZ_Plane, [""])
sketch14.MapMode = "FlatFace"
sketch14.AttachmentOffset = App.Placement(Vector(0, 0, -21.5), App.Rotation())
sketch14.addGeometry(Part.LineSegment(Vector(-12.4, -6.4, 0), Vector(-7.4, -6.4, 0)), False)
sketch14.addGeometry(Part.LineSegment(Vector(-7.4, -6.4, 0), Vector(-7.4, -8.1, 0)), False)
sketch14.addGeometry(Part.LineSegment(Vector(-7.4, -8.1, 0), Vector(-8.1, -8.1, 0)), False)
sketch14.addGeometry(Part.LineSegment(Vector(-8.1, -8.1, 0), Vector(-8.1, -7.1, 0)), False)
sketch14.addGeometry(Part.LineSegment(Vector(-8.1, -7.1, 0), Vector(-12.4, -7.1, 0)), False)
sketch14.addGeometry(Part.LineSegment(Vector(-12.4, -7.1, 0), Vector(-12.4, -6.4, 0)), False)
sketch14.addGeometry(Part.LineSegment(Vector(-7.4, -9.1, 0), Vector(-7.4, -9.8, 0)), False)
sketch14.addGeometry(Part.LineSegment(Vector(-7.4, -9.8, 0), Vector(-12.4, -9.8, 0)), False)
sketch14.addGeometry(Part.LineSegment(Vector(-12.4, -9.8, 0), Vector(-12.4, -8.1, 0)), False)
sketch14.addGeometry(Part.LineSegment(Vector(-12.4, -8.1, 0), Vector(-11.7, -8.1, 0)), False)
sketch14.addGeometry(Part.LineSegment(Vector(-11.7, -8.1, 0), Vector(-11.7, -9.1, 0)), False)
sketch14.addGeometry(Part.LineSegment(Vector(-11.7, -9.1, 0), Vector(-7.4, -9.1, 0)), False)
sketch14.addConstraint(Sketcher.Constraint("Coincident", 0, 2, 1, 1))
sketch14.addConstraint(Sketcher.Constraint("Coincident", 1, 2, 2, 1))
sketch14.addConstraint(Sketcher.Constraint("Coincident", 2, 2, 3, 1))
sketch14.addConstraint(Sketcher.Constraint("Coincident", 3, 2, 4, 1))
sketch14.addConstraint(Sketcher.Constraint("Coincident", 4, 2, 5, 1))
sketch14.addConstraint(Sketcher.Constraint("Coincident", 5, 2, 0, 1))
sketch14.addConstraint(Sketcher.Constraint("Coincident", 6, 2, 7, 1))
sketch14.addConstraint(Sketcher.Constraint("Coincident", 7, 2, 8, 1))
sketch14.addConstraint(Sketcher.Constraint("Coincident", 8, 2, 9, 1))
sketch14.addConstraint(Sketcher.Constraint("Coincident", 9, 2, 10, 1))
sketch14.addConstraint(Sketcher.Constraint("Coincident", 10, 2, 11, 1))
sketch14.addConstraint(Sketcher.Constraint("Coincident", 11, 2, 6, 1))
sketch14.addConstraint(Sketcher.Constraint("Horizontal", 0))
sketch14.addConstraint(Sketcher.Constraint("Vertical", 1))
sketch14.addConstraint(Sketcher.Constraint("Horizontal", 2))
sketch14.addConstraint(Sketcher.Constraint("Vertical", 3))
sketch14.addConstraint(Sketcher.Constraint("Horizontal", 4))
sketch14.addConstraint(Sketcher.Constraint("Vertical", 5))
sketch14.addConstraint(Sketcher.Constraint("Vertical", 6))
sketch14.addConstraint(Sketcher.Constraint("Horizontal", 7))
sketch14.addConstraint(Sketcher.Constraint("Vertical", 8))
sketch14.addConstraint(Sketcher.Constraint("Horizontal", 9))
sketch14.addConstraint(Sketcher.Constraint("Vertical", 10))
sketch14.addConstraint(Sketcher.Constraint("Horizontal", 11))
sketch14.addConstraint(Sketcher.Constraint("Horizontal", 2, 2, 8, 2))
sketch14.addConstraint(Sketcher.Constraint("Vertical", 1, 2, 6, 2))
sketch14.addConstraint(Sketcher.Constraint("Vertical", 5, 2, 7, 2))
sketch14.addConstraint(Sketcher.Constraint("Equal", 2, 9))
sketch14.addConstraint(Sketcher.Constraint("Equal", 9, 5))
sketch14.addConstraint(Sketcher.Constraint("Equal", 5, 6))
sketch14.addConstraint(Sketcher.Constraint("Equal", 1, 8))
sketch14.addConstraint(Sketcher.Constraint("DistanceX", 0, 1, 0, 2, 5.0))
sketch14.addConstraint(Sketcher.Constraint("DistanceY", 3, 1, 3, 2, 1.0))
sketch14.addConstraint(Sketcher.Constraint("DistanceX", 2, 2, 2, 1, 0.7))
sketch14.addConstraint(Sketcher.Constraint("DistanceX", 0, 2, -1, 1, 7.4))
sketch14.addConstraint(Sketcher.Constraint("DistanceY", 0, 2, -1, 1, 6.4))
sketch14.setExpression("Constraints[31]", "Params.sketch14_width")
sketch14.setExpression("Constraints[32]", "Params.sketch14_height")
sketch14.setExpression("Constraints[33]", "Params.sketch14_width2")
pocket6 = doc.addObject("PartDesign::Pocket", "Pocket005")
body.addObject(pocket6)
pocket6.Profile = sketch14
pocket6.setExpression("Length", "Params.pocket6_length")
pocket6.Reversed = True

# Sketch on XZ plane
sketch15 = doc.addObject("Sketcher::SketchObject", "Sketch014")
body.addObject(sketch15)
sketch15.AttachmentSupport = (doc.XZ_Plane, [""])
sketch15.MapMode = "FlatFace"
sketch15.AttachmentOffset = App.Placement(Vector(0, 0, -21.5), App.Rotation())
sketch15.addGeometry(Part.LineSegment(Vector(-12.4, -6.4, 0), Vector(-7.4, -6.4, 0)), False)
sketch15.addGeometry(Part.LineSegment(Vector(-7.4, -6.4, 0), Vector(-7.4, -8.1, 0)), False)
sketch15.addGeometry(Part.LineSegment(Vector(-7.4, -8.1, 0), Vector(-8.1, -8.1, 0)), False)
sketch15.addGeometry(Part.LineSegment(Vector(-8.1, -8.1, 0), Vector(-8.1, -7.1, 0)), False)
sketch15.addGeometry(Part.LineSegment(Vector(-8.1, -7.1, 0), Vector(-12.4, -7.1, 0)), False)
sketch15.addGeometry(Part.LineSegment(Vector(-12.4, -7.1, 0), Vector(-12.4, -6.4, 0)), False)
sketch15.addConstraint(Sketcher.Constraint("Coincident", 0, 2, 1, 1))
sketch15.addConstraint(Sketcher.Constraint("Coincident", 1, 2, 2, 1))
sketch15.addConstraint(Sketcher.Constraint("Coincident", 2, 2, 3, 1))
sketch15.addConstraint(Sketcher.Constraint("Coincident", 3, 2, 4, 1))
sketch15.addConstraint(Sketcher.Constraint("Coincident", 4, 2, 5, 1))
sketch15.addConstraint(Sketcher.Constraint("Coincident", 5, 2, 0, 1))
sketch15.addConstraint(Sketcher.Constraint("Horizontal", 0))
sketch15.addConstraint(Sketcher.Constraint("Vertical", 1))
sketch15.addConstraint(Sketcher.Constraint("Horizontal", 2))
sketch15.addConstraint(Sketcher.Constraint("Vertical", 3))
sketch15.addConstraint(Sketcher.Constraint("Horizontal", 4))
sketch15.addConstraint(Sketcher.Constraint("Vertical", 5))
sketch15.addConstraint(Sketcher.Constraint("Equal", 2, 5))
sketch15.addConstraint(Sketcher.Constraint("DistanceX", 0, 1, 0, 2, 5.0))
sketch15.addConstraint(Sketcher.Constraint("DistanceY", 3, 1, 3, 2, 1.0))
sketch15.addConstraint(Sketcher.Constraint("DistanceX", 2, 2, 2, 1, 0.7))
sketch15.addConstraint(Sketcher.Constraint("DistanceX", 0, 2, -1, 1, 7.4))
sketch15.addConstraint(Sketcher.Constraint("DistanceY", 0, 2, -1, 1, 6.4))
sketch15.setExpression("Constraints[13]", "Params.sketch15_width")
sketch15.setExpression("Constraints[14]", "Params.sketch15_height")
sketch15.setExpression("Constraints[15]", "Params.sketch15_width2")
pocket7 = doc.addObject("PartDesign::Pocket", "Pocket006")
body.addObject(pocket7)
pocket7.Profile = sketch15
pocket7.setExpression("Length", "Params.pocket7_length")

# Sketch on XZ plane
sketch16 = doc.addObject("Sketcher::SketchObject", "Sketch015")
body.addObject(sketch16)
sketch16.AttachmentSupport = (doc.XZ_Plane, [""])
sketch16.MapMode = "FlatFace"
sketch16.AttachmentOffset = App.Placement(Vector(0, 0, -21.5), App.Rotation())
sketch16.addGeometry(Part.LineSegment(Vector(-7.4, -9.1, 0), Vector(-7.4, -9.8, 0)), False)
sketch16.addGeometry(Part.LineSegment(Vector(-7.4, -9.8, 0), Vector(-12.4, -9.8, 0)), False)
sketch16.addGeometry(Part.LineSegment(Vector(-12.4, -9.8, 0), Vector(-12.4, -8.1, 0)), False)
sketch16.addGeometry(Part.LineSegment(Vector(-12.4, -8.1, 0), Vector(-11.7, -8.1, 0)), False)
sketch16.addGeometry(Part.LineSegment(Vector(-11.7, -8.1, 0), Vector(-11.7, -9.1, 0)), False)
sketch16.addGeometry(Part.LineSegment(Vector(-11.7, -9.1, 0), Vector(-7.4, -9.1, 0)), False)
sketch16.addConstraint(Sketcher.Constraint("Coincident", 0, 2, 1, 1))
sketch16.addConstraint(Sketcher.Constraint("Coincident", 1, 2, 2, 1))
sketch16.addConstraint(Sketcher.Constraint("Coincident", 2, 2, 3, 1))
sketch16.addConstraint(Sketcher.Constraint("Coincident", 3, 2, 4, 1))
sketch16.addConstraint(Sketcher.Constraint("Coincident", 4, 2, 5, 1))
sketch16.addConstraint(Sketcher.Constraint("Coincident", 5, 2, 0, 1))
sketch16.addConstraint(Sketcher.Constraint("Vertical", 0))
sketch16.addConstraint(Sketcher.Constraint("Horizontal", 1))
sketch16.addConstraint(Sketcher.Constraint("Vertical", 2))
sketch16.addConstraint(Sketcher.Constraint("Horizontal", 3))
sketch16.addConstraint(Sketcher.Constraint("Vertical", 4))
sketch16.addConstraint(Sketcher.Constraint("Horizontal", 5))
sketch16.addConstraint(Sketcher.Constraint("Equal", 3, 0))
sketch16.addConstraint(Sketcher.Constraint("DistanceX", 1, 2, 1, 1, 5.0))
sketch16.addConstraint(Sketcher.Constraint("DistanceY", 4, 2, 4, 1, 1.0))
sketch16.addConstraint(Sketcher.Constraint("DistanceX", 3, 1, 3, 2, 0.7))
sketch16.addConstraint(Sketcher.Constraint("DistanceX", 0, 2, -1, 1, 7.4))
sketch16.addConstraint(Sketcher.Constraint("DistanceY", 0, 2, -1, 1, 9.8))
sketch16.setExpression("Constraints[13]", "Params.sketch16_width")
sketch16.setExpression("Constraints[14]", "Params.sketch16_height")
sketch16.setExpression("Constraints[15]", "Params.sketch16_width2")
pocket8 = doc.addObject("PartDesign::Pocket", "Pocket007")
body.addObject(pocket8)
pocket8.Profile = sketch16
pocket8.setExpression("Length", "Params.pocket8_length")

# Sketch on XZ plane
sketch17 = doc.addObject("Sketcher::SketchObject", "Sketch016")
body.addObject(sketch17)
sketch17.AttachmentSupport = (doc.XZ_Plane, [""])
sketch17.MapMode = "FlatFace"
sketch17.AttachmentOffset = App.Placement(Vector(0, 0, -3), App.Rotation())
sketch17.addGeometry(Part.LineSegment(Vector(-16.1, -6.1, 0), Vector(-16.1, 6.1, 0)), False)
sketch17.addGeometry(Part.LineSegment(Vector(-16.1, 6.1, 0), Vector(16.1, 6.1, 0)), False)
sketch17.addGeometry(Part.LineSegment(Vector(16.1, 6.1, 0), Vector(16.1, -6.1, 0)), False)
sketch17.addGeometry(Part.LineSegment(Vector(16.1, -6.1, 0), Vector(-16.1, -6.1, 0)), False)
sketch17.addConstraint(Sketcher.Constraint("Coincident", 0, 2, 1, 1))
sketch17.addConstraint(Sketcher.Constraint("Coincident", 1, 2, 2, 1))
sketch17.addConstraint(Sketcher.Constraint("Coincident", 2, 2, 3, 1))
sketch17.addConstraint(Sketcher.Constraint("Coincident", 3, 2, 0, 1))
sketch17.addConstraint(Sketcher.Constraint("Vertical", 0))
sketch17.addConstraint(Sketcher.Constraint("Horizontal", 1))
sketch17.addConstraint(Sketcher.Constraint("Vertical", 2))
sketch17.addConstraint(Sketcher.Constraint("Horizontal", 3))
sketch17.addConstraint(Sketcher.Constraint("Symmetric", 0, 2, 2, 2, -1, 1))
sketch17.addConstraint(Sketcher.Constraint("DistanceX", 1, 1, 1, 2, 32.2))
sketch17.addConstraint(Sketcher.Constraint("DistanceY", 0, 1, 0, 2, 12.2))
sketch17.setExpression("Constraints[9]", "Params.sketch17_width")
sketch17.setExpression("Constraints[10]", "Params.sketch17_height")
pocket9 = doc.addObject("PartDesign::Pocket", "Pocket008")
body.addObject(pocket9)
pocket9.Profile = sketch17
pocket9.setExpression("Length", "Params.pocket9_length")
pocket9.Reversed = True

doc.recompute()
